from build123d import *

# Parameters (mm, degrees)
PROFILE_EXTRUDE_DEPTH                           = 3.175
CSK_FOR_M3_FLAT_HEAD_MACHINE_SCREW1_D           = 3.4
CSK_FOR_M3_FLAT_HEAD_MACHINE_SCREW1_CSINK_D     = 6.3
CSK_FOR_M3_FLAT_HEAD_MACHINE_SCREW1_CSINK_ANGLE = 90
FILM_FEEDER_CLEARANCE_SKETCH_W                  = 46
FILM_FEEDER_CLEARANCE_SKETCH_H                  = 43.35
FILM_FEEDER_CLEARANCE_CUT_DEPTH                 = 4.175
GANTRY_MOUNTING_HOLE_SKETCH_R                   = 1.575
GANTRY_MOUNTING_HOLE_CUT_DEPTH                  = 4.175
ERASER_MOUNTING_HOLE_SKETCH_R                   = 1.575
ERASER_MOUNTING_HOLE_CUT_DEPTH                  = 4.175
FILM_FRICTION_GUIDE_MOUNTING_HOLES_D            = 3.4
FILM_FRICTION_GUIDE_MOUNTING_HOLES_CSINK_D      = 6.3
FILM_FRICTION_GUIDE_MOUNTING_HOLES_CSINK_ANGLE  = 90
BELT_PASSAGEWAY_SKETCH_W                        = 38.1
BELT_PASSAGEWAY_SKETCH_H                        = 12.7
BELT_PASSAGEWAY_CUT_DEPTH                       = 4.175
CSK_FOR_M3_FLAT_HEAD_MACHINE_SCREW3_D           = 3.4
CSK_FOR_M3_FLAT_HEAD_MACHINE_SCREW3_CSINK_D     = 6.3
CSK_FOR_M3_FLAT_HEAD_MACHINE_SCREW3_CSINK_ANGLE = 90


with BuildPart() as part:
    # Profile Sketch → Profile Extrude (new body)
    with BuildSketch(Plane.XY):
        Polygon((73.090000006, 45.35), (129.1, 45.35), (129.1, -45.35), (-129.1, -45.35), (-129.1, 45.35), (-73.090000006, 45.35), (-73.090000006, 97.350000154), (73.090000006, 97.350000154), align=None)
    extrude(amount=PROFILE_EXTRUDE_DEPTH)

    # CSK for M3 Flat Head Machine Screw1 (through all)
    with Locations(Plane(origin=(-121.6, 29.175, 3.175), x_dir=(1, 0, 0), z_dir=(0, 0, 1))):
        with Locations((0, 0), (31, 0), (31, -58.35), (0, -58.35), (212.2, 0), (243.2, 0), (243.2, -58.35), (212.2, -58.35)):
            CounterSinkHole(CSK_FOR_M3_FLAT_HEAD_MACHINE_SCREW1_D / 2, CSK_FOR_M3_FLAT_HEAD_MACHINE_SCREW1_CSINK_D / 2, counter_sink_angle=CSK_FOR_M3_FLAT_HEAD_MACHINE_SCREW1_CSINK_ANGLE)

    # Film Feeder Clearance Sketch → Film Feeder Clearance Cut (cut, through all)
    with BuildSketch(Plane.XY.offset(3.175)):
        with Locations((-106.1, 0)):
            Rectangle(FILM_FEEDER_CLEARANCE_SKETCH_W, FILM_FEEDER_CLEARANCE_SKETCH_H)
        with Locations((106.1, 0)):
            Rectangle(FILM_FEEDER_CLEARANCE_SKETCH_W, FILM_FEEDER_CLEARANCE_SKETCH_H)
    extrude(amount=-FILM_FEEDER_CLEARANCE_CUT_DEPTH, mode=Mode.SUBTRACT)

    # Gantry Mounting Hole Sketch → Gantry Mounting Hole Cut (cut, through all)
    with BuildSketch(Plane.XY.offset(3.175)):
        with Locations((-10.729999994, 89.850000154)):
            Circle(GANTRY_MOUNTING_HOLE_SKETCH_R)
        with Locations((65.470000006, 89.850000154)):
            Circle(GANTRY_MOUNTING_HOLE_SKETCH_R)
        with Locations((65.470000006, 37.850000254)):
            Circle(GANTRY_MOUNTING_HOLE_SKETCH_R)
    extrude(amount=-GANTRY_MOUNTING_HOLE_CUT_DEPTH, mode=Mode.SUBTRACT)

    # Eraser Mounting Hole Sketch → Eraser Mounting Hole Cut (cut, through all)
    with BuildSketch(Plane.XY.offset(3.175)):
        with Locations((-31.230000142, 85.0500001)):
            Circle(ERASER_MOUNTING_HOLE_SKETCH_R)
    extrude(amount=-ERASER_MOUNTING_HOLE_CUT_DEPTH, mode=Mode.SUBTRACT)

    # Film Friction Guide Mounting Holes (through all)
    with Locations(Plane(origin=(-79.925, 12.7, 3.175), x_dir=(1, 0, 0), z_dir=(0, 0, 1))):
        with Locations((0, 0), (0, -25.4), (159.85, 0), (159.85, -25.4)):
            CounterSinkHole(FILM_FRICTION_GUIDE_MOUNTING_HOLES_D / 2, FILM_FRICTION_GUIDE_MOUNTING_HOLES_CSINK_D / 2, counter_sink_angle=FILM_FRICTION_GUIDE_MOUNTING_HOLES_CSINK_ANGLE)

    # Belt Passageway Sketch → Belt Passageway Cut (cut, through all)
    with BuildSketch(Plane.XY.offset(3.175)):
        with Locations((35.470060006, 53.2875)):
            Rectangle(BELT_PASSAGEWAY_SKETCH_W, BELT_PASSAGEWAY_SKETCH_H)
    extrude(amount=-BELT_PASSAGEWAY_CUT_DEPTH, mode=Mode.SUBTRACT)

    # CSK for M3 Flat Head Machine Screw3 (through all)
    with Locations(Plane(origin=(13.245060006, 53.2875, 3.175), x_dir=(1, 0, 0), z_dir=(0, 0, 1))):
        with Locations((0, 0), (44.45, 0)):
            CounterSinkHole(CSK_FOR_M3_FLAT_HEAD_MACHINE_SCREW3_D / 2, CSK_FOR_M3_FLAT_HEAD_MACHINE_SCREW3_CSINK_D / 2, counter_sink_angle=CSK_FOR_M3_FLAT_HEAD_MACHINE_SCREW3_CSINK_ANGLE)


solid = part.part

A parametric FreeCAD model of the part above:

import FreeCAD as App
import Part
import Sketcher

V = App.Vector
Q = App.Units.Quantity


def add_polygon(sketch, points):
    """Adds a closed chain of lines whose ends are joined by coincident constraints."""
    first, n = sketch.GeometryCount, len(points)
    for a, b in zip(points, points[1:] + points[:1]):
        sketch.addGeometry(Part.LineSegment(App.Vector(*a, 0), App.Vector(*b, 0)), False)
    for i in range(n):
        sketch.addConstraint(Sketcher.Constraint("Coincident", first + i, 2, first + (i + 1) % n, 1))

doc = App.newDocument("Part")
body = doc.addObject("PartDesign::Body", "Body")

sketch1 = body.newObject("Sketcher::SketchObject", "Sketch")
sketch1.AttachmentSupport = (doc.getObject("XY_Plane"), [""])
sketch1.MapMode = "FlatFace"
add_polygon(sketch1, [(129, 45), (73, 45), (73, 97), (-73, 97), (-73, 45), (-129, 45), (-129, -45), (129, -45)])
sketch1.addConstraint(Sketcher.Constraint("Horizontal", 0))
sketch1.addConstraint(Sketcher.Constraint("Vertical", 1))
sketch1.addConstraint(Sketcher.Constraint("Horizontal", 2))
sketch1.addConstraint(Sketcher.Constraint("Vertical", 3))
sketch1.addConstraint(Sketcher.Constraint("Horizontal", 4))
sketch1.addConstraint(Sketcher.Constraint("Vertical", 5))
sketch1.addConstraint(Sketcher.Constraint("Horizontal", 6))
sketch1.addConstraint(Sketcher.Constraint("Vertical", 7))
sketch1.addConstraint(Sketcher.Constraint("Symmetric", 4, 2, 6, 2, -1, 1))
sketch1.addConstraint(Sketcher.Constraint("Symmetric", 0, 2, 3, 2, -2))
sketch1.addConstraint(Sketcher.Constraint("DistanceY", 1, 1, 1, 2, Q("52 mm")))
sketch1.addConstraint(Sketcher.Constraint("DistanceX", 6, 1, 6, 2, Q("258.2 mm")))
sketch1.addConstraint(Sketcher.Constraint("DistanceY", 5, 2, 5, 1, Q("90.7 mm")))
sketch1.addConstraint(Sketcher.Constraint("DistanceX", 0, 2, 0, 1, Q("56.01 mm")))
pad1 = body.newObject("PartDesign::Pad", "Pad")
pad1.Profile = sketch1
pad1.Length = 3.175

sketch2 = body.newObject("Sketcher::SketchObject", "Sketch001")
sketch2.AttachmentSupport = (doc.getObject("XY_Plane"), [""])
sketch2.MapMode = "FlatFace"
sketch2.AttachmentOffset = App.Placement(V(0, 0, 3.175), App.Rotation())
sketch2.addGeometry(Part.Circle(V(-121.6, 29.2, 0), V(0, 0, 1), 1.7), False)
sketch2.addGeometry(Part.Circle(V(-90.6, 29.2, 0), V(0, 0, 1), 1.7), False)
sketch2.addGeometry(Part.Circle(V(-90.6, -29.2, 0), V(0, 0, 1), 1.7), False)
sketch2.addGeometry(Part.Circle(V(-121.6, -29.2, 0), V(0, 0, 1), 1.7), False)
sketch2.addGeometry(Part.Circle(V(90.6, 29.2, 0), V(0, 0, 1), 1.7), False)
sketch2.addGeometry(Part.Circle(V(121.6, 29.2, 0), V(0, 0, 1), 1.7), False)
sketch2.addGeometry(Part.Circle(V(121.6, -29.2, 0), V(0, 0, 1), 1.7), False)
sketch2.addGeometry(Part.Circle(V(90.6, -29.2, 0), V(0, 0, 1), 1.7), False)
sketch2.addConstraint(Sketcher.Constraint("Equal", 0, 1))
sketch2.addConstraint(Sketcher.Constraint("Equal", 1, 2))
sketch2.addConstraint(Sketcher.Constraint("Equal", 2, 3))
sketch2.addConstraint(Sketcher.Constraint("Equal", 3, 4))
sketch2.addConstraint(Sketcher.Constraint("Equal", 4, 5))
sketch2.addConstraint(Sketcher.Constraint("Equal", 5, 6))
sketch2.addConstraint(Sketcher.Constraint("Equal", 6, 7))
sketch2.addConstraint(Sketcher.Constraint("Symmetric", 2, 3, 4, 3, -1, 1))
sketch2.addConstraint(Sketcher.Constraint("Symmetric", 3, 3, 5, 3, -1, 1))
sketch2.addConstraint(Sketcher.Constraint("Symmetric", 0, 3, 6, 3, -1, 1))
sketch2.addConstraint(Sketcher.Constraint("Symmetric", 1, 3, 7, 3, -1, 1))
sketch2.addConstraint(Sketcher.Constraint("Symmetric", 1, 3, 4, 3, -2))
sketch2.addConstraint(Sketcher.Constraint("Symmetric", 0, 3, 5, 3, -2))
sketch2.addConstraint(Sketcher.Constraint("Horizontal", 0, 3, 1, 3))
sketch2.addConstraint(Sketcher.Constraint("Diameter", 0, Q("3.4 mm")))
sketch2.addConstraint(Sketcher.Constraint("DistanceX", 0, 3, 1, 3, Q("31 mm")))
sketch2.addConstraint(Sketcher.Constraint("DistanceX", 0, 3, -1, 1, Q("121.6 mm")))
sketch2.addConstraint(Sketcher.Constraint("DistanceY", 2, 3, 1, 3, Q("58.35 mm")))
doc.recompute()
hole = body.newObject("PartDesign::Hole", "Hole")
hole.Profile = sketch2
hole.ThreadType = "None"
hole.Diameter = 3.4
hole.DepthType = "ThroughAll"
hole.HoleCutType = "Countersink"
hole.HoleCutDiameter = 6.3
hole.HoleCutCountersinkAngle = 90

sketch3 = body.newObject("Sketcher::SketchObject", "Sketch002")
sketch3.AttachmentSupport = (doc.getObject("XY_Plane"), [""])
sketch3.MapMode = "FlatFace"
sketch3.AttachmentOffset = App.Placement(V(0, 0, 3.175), App.Rotation())
add_polygon(sketch3, [(-129, 22), (-129, -22), (-83, -22), (-83, 22)])
add_polygon(sketch3, [(83, 22), (83, -22), (129, -22), (129, 22)])
sketch3.addConstraint(Sketcher.Constraint("Vertical", 0))
sketch3.addConstraint(Sketcher.Constraint("Horizontal", 1))
sketch3.addConstraint(Sketcher.Constraint("Vertical", 2))
sketch3.addConstraint(Sketcher.Constraint("Horizontal", 3))
sketch3.addConstraint(Sketcher.Constraint("Vertical", 4))
sketch3.addConstraint(Sketcher.Constraint("Horizontal", 5))
sketch3.addConstraint(Sketcher.Constraint("Vertical", 6))
sketch3.addConstraint(Sketcher.Constraint("Horizontal", 7))
sketch3.addConstraint(Sketcher.Constraint("Symmetric", 2, 2, 4, 2, -1, 1))
sketch3.addConstraint(Sketcher.Constraint("Symmetric", 0, 2, 6, 2, -1, 1))
sketch3.addConstraint(Sketcher.Constraint("Horizontal", 1, 2, 4, 2))
sketch3.addConstraint(Sketcher.Constraint("DistanceX", 1, 1, 1, 2, Q("46 mm")))
sketch3.addConstraint(Sketcher.Constraint("DistanceY", 0, 2, 0, 1, Q("43.35 mm")))
sketch3.addConstraint(Sketcher.Constraint("DistanceX", 0, 2, -1, 1, Q("129.1 mm")))
pocket1 = body.newObject("PartDesign::Pocket", "Pocket")
pocket1.Profile = sketch3
pocket1.Type = "ThroughAll"

sketch4 = body.newObject("Sketcher::SketchObject", "Sketch003")
sketch4.AttachmentSupport = (doc.getObject("XY_Plane"), [""])
sketch4.MapMode = "FlatFace"
sketch4.AttachmentOffset = App.Placement(V(0, 0, 3.175), App.Rotation())
sketch4.addGeometry(Part.Circle(V(-10.7, 89.9, 0), V(0, 0, 1), 1.6), False)
sketch4.addGeometry(Part.Circle(V(65.5, 89.9, 0), V(0, 0, 1), 1.6), False)
sketch4.addGeometry(Part.Circle(V(65.5, 37.9, 0), V(0, 0, 1), 1.6), False)
sketch4.addConstraint(Sketcher.Constraint("Equal", 0, 1))
sketch4.addConstraint(Sketcher.Constraint("Equal", 1, 2))
sketch4.addConstraint(Sketcher.Constraint("Horizontal", 0, 3, 1, 3))
sketch4.addConstraint(Sketcher.Constraint("Vertical", 1, 3, 2, 3))
sketch4.addConstraint(Sketcher.Constraint("Diameter", 0, Q("3.15 mm")))
sketch4.addConstraint(Sketcher.Constraint("DistanceY", 2, 3, 1, 3, Q("52 mm")))
sketch4.addConstraint(Sketcher.Constraint("DistanceX", 0, 3, 1, 3, Q("76.2 mm")))
sketch4.addConstraint(Sketcher.Constraint("DistanceX", 0, 3, -1, 1, Q("10.73 mm")))
sketch4.addConstraint(Sketcher.Constraint("DistanceY", -1, 1, 0, 3, Q("89.85 mm")))
pocket2 = body.newObject("PartDesign::Pocket", "Pocket001")
pocket2.Profile = sketch4
pocket2.Type = "ThroughAll"

sketch5 = body.newObject("Sketcher::SketchObject", "Sketch004")
sketch5.AttachmentSupport = (doc.getObject("XY_Plane"), [""])
sketch5.MapMode = "FlatFace"
sketch5.AttachmentOffset = App.Placement(V(0, 0, 3.175), App.Rotation())
sketch5.addGeometry(Part.Circle(V(-31.2, 85.1, 0), V(0, 0, 1), 1.6), False)
sketch5.addConstraint(Sketcher.Constraint("Diameter", 0, Q("3.15 mm")))
sketch5.addConstraint(Sketcher.Constraint("DistanceX", 0, 3, -1, 1, Q("31.23 mm")))
sketch5.addConstraint(Sketcher.Constraint("DistanceY", -1, 1, 0, 3, Q("85.05 mm")))
pocket3 = body.newObject("PartDesign::Pocket", "Pocket002")
pocket3.Profile = sketch5
pocket3.Type = "ThroughAll"

sketch6 = body.newObject("Sketcher::SketchObject", "Sketch005")
sketch6.AttachmentSupport = (doc.getObject("XY_Plane"), [""])
sketch6.MapMode = "FlatFace"
sketch6.AttachmentOffset = App.Placement(V(0, 0, 3.175), App.Rotation())
sketch6.addGeometry(Part.Circle(V(-79.9, 12.7, 0), V(0, 0, 1), 1.7), False)
sketch6.addGeometry(Part.Circle(V(-79.9, -12.7, 0), V(0, 0, 1), 1.7), False)
sketch6.addGeometry(Part.Circle(V(79.9, 12.7, 0), V(0, 0, 1), 1.7), False)
sketch6.addGeometry(Part.Circle(V(79.9, -12.7, 0), V(0, 0, 1), 1.7), False)
sketch6.addConstraint(Sketcher.Constraint("Equal", 0, 1))
sketch6.addConstraint(Sketcher.Constraint("Equal", 1, 2))
sketch6.addConstraint(Sketcher.Constraint("Equal", 2, 3))
sketch6.addConstraint(Sketcher.Constraint("Symmetric", 1, 3, 2, 3, -1, 1))
sketch6.addConstraint(Sketcher.Constraint("Symmetric", 0, 3, 3, 3, -1, 1))
sketch6.addConstraint(Sketcher.Constraint("Symmetric", 0, 3, 2, 3, -2))
sketch6.addConstraint(Sketcher.Constraint("Diameter", 0, Q("3.4 mm")))
sketch6.addConstraint(Sketcher.Constraint("DistanceY", -1, 1, 0, 3, Q("12.7 mm")))
sketch6.addConstraint(Sketcher.Constraint("DistanceX", 0, 3, 2, 3, Q("159.85 mm")))
doc.recompute()
hole2 = body.newObject("PartDesign::Hole", "Hole001")
hole2.Profile = sketch6
hole2.ThreadType = "None"
hole2.Diameter = 3.4
hole2.DepthType = "ThroughAll"
hole2.HoleCutType = "Countersink"
hole2.HoleCutDiameter = 6.3
hole2.HoleCutCountersinkAngle = 90

sketch7 = body.newObject("Sketcher::SketchObject", "Sketch006")
sketch7.AttachmentSupport = (doc.getObject("XY_Plane"), [""])
sketch7.MapMode = "FlatFace"
sketch7.AttachmentOffset = App.Placement(V(0, 0, 3.175), App.Rotation())
add_polygon(sketch7, [(16, 60), (16, 47), (55, 47), (55, 60)])
sketch7.addConstraint(Sketcher.Constraint("Vertical", 0))
sketch7.addConstraint(Sketcher.Constraint("Horizontal", 1))
sketch7.addConstraint(Sketcher.Constraint("Vertical", 2))
sketch7.addConstraint(Sketcher.Constraint("Horizontal", 3))
sketch7.addConstraint(Sketcher.Constraint("DistanceX", 1, 1, 1, 2, Q("38.1 mm")))
sketch7.addConstraint(Sketcher.Constraint("DistanceY", 0, 2, 0, 1, Q("12.7 mm")))
sketch7.addConstraint(Sketcher.Constraint("DistanceY", -1, 1, 0, 2, Q("46.9375 mm")))
sketch7.addConstraint(Sketcher.Constraint("DistanceX", -1, 1, 0, 2, Q("16.42006 mm")))
pocket4 = body.newObject("PartDesign::Pocket", "Pocket003")
pocket4.Profile = sketch7
pocket4.Type = "ThroughAll"

sketch8 = body.newObject("Sketcher::SketchObject", "Sketch007")
sketch8.AttachmentSupport = (doc.getObject("XY_Plane"), [""])
sketch8.MapMode = "FlatFace"
sketch8.AttachmentOffset = App.Placement(V(0, 0, 3.175), App.Rotation())
sketch8.addGeometry(Part.Circle(V(13.2, 53.3, 0), V(0, 0, 1), 1.7), False)
sketch8.addGeometry(Part.Circle(V(57.7, 53.3, 0), V(0, 0, 1), 1.7), False)
sketch8.addConstraint(Sketcher.Constraint("Equal", 0, 1))
sketch8.addConstraint(Sketcher.Constraint("Horizontal", 0, 3, 1, 3))
sketch8.addConstraint(Sketcher.Constraint("Diameter", 0, Q("3.4 mm")))
sketch8.addConstraint(Sketcher.Constraint("DistanceX", 0, 3, 1, 3, Q("44.45 mm")))
sketch8.addConstraint(Sketcher.Constraint("DistanceY", -1, 1, 0, 3, Q("53.2875 mm")))
sketch8.addConstraint(Sketcher.Constraint("DistanceX", -1, 1, 0, 3, Q("13.24506 mm")))
doc.recompute()
hole3 = body.newObject("PartDesign::Hole", "Hole002")
hole3.Profile = sketch8
hole3.ThreadType = "None"
hole3.Diameter = 3.4
hole3.DepthType = "ThroughAll"
hole3.HoleCutType = "Countersink"
hole3.HoleCutDiameter = 6.3
hole3.HoleCutCountersinkAngle = 90

doc.recompute()
